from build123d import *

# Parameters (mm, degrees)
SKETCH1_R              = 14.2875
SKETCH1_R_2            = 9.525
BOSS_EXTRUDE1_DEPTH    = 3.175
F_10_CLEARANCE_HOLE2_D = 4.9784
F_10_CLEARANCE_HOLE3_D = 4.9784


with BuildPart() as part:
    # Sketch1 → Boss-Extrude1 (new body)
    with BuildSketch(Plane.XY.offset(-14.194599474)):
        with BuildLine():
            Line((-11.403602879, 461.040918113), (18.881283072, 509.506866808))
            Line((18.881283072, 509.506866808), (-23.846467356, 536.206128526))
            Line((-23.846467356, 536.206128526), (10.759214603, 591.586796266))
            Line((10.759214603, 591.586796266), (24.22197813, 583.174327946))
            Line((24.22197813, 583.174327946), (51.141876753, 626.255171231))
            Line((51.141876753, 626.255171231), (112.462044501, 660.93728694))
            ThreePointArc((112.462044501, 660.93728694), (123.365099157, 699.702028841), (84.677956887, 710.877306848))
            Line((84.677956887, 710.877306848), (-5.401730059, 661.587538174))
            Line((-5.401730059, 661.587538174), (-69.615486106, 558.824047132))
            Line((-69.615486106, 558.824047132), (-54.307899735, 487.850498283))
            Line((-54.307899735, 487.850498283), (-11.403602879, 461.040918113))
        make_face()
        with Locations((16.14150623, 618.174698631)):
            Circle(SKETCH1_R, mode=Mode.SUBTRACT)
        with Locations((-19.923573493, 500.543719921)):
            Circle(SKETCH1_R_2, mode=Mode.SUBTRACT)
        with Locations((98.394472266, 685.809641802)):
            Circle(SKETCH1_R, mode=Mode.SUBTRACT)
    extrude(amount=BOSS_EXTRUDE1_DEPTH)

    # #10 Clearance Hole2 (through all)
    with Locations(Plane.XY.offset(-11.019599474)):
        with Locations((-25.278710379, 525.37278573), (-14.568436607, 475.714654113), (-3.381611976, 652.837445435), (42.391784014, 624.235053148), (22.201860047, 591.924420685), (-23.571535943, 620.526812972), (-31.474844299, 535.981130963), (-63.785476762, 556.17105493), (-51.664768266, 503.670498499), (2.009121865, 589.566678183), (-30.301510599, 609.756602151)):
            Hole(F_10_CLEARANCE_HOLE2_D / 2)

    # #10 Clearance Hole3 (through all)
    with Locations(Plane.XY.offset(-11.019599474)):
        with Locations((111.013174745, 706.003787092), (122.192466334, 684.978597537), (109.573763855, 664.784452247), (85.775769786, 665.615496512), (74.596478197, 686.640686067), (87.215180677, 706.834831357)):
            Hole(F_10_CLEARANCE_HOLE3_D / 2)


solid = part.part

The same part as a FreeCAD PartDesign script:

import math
import FreeCAD as App
import Part
import Sketcher

V = App.Vector
Q = App.Units.Quantity

doc = App.newDocument("Part")
body = doc.addObject("PartDesign::Body", "Body")

# Sketch on XY plane
sketch1 = body.newObject("Sketcher::SketchObject", "Sketch")
sketch1.AttachmentSupport = (doc.getObject("XY_Plane"), [""])
sketch1.MapMode = "FlatFace"
sketch1.AttachmentOffset = App.Placement(V(0, 0, -14.194599), App.Rotation())
sketch1.addGeometry([
    Part.LineSegment(V(-11, 461, 0), V(19, 510, 0)),  # 0
    Part.LineSegment(V(19, 510, 0), V(-24, 536, 0)),  # 1
    Part.LineSegment(V(-24, 536, 0), V(11, 592, 0)),  # 2
    Part.LineSegment(V(11, 592, 0), V(24, 583, 0)),  # 3
    Part.LineSegment(V(24, 583, 0), V(51, 626, 0)),  # 4
    Part.LineSegment(V(51, 626, 0), V(112, 661, 0)),  # 5
    Part.ArcOfCircle(Part.Circle(V(98, 686, 0), V(0, 0, 1), 29), math.radians(-61), math.radians(119)),  # 6
    Part.LineSegment(V(85, 711, 0), V(-5, 662, 0)),  # 7
    Part.LineSegment(V(-5, 662, 0), V(-70, 559, 0)),  # 8
    Part.LineSegment(V(-70, 559, 0), V(-54, 488, 0)),  # 9
    Part.LineSegment(V(-54, 488, 0), V(-11, 461, 0)),  # 10
    Part.Circle(V(-20, 501, 0), V(0, 0, 1), 10),  # 11
    Part.Circle(V(16, 618, 0), V(0, 0, 1), 14),  # 12
    Part.Circle(V(98, 686, 0), V(0, 0, 1), 14),  # 13
], False)
sketch1.addConstraint([
    Sketcher.Constraint("Coincident", 0, 2, 1, 1),
    Sketcher.Constraint("Coincident", 1, 2, 2, 1),
    Sketcher.Constraint("Coincident", 2, 2, 3, 1),
    Sketcher.Constraint("Coincident", 3, 2, 4, 1),
    Sketcher.Constraint("Coincident", 4, 2, 5, 1),
    Sketcher.Constraint("Tangent", 5, 2, 6, 1),
    Sketcher.Constraint("Tangent", 6, 2, 7, 1),
    Sketcher.Constraint("Coincident", 7, 2, 8, 1),
    Sketcher.Constraint("Coincident", 8, 2, 9, 1),
    Sketcher.Constraint("Coincident", 9, 2, 10, 1),
    Sketcher.Constraint("Coincident", 10, 2, 0, 1),
    Sketcher.Constraint("Coincident", 13, 3, 6, 3),
    Sketcher.Constraint("Equal", 12, 13),
    Sketcher.Constraint("Perpendicular", 0, 1),
    Sketcher.Constraint("Perpendicular", 1, 2),
    Sketcher.Constraint("Perpendicular", 2, 3),
    Sketcher.Constraint("Perpendicular", 3, 4),
    Sketcher.Constraint("Parallel", 4, 8),
    Sketcher.Constraint("Perpendicular", 8, 10),
    Sketcher.Constraint("Diameter", 11, Q("0.75 in")),
    Sketcher.Constraint("Distance", 4, Q("2 in")),
    Sketcher.Constraint("Diameter", 12, Q("1.125 in")),
    Sketcher.Constraint("Angle", 0, Q("58 deg")),
    Sketcher.Constraint("Radius", 6, Q("1.125 in")),
    Sketcher.Constraint("Distance", 0, Q("2.25 in")),
    Sketcher.Constraint("Distance", 3, Q("0.625 in")),
    Sketcher.Constraint("DistanceY", -1, 1, 12, 3, 618.174699),
    Sketcher.Constraint("DistanceX", 9, 2, -1, 1, 54.3079),
    Sketcher.Constraint("DistanceY", -1, 1, 9, 2, 487.850498),
    Sketcher.Constraint("DistanceY", 1, 2, 3, 2, 46.968199),
    Sketcher.Constraint("DistanceX", 8, 2, 2, 2, 80.374701),
    Sketcher.Constraint("DistanceY", 10, 2, 11, 3, 39.502802),
    Sketcher.Constraint("Distance", 1, 50.383641),
    Sketcher.Constraint("Distance", 5, 70.448649),
    Sketcher.Constraint("Distance", 7, 102.68316),
    Sketcher.Constraint("Distance", 8, 121.176489),
    Sketcher.Constraint("Distance", 10, 50.59182),
    Sketcher.Constraint("DistanceY", -1, 1, 6, 3, 685.809642),
    Sketcher.Constraint("DistanceX", 11, 3, 12, 3, 36.06508),
    Sketcher.Constraint("DistanceX", 2, 2, 12, 3, 5.382292),
])
pad1 = body.newObject("PartDesign::Pad", "Pad")
pad1.Profile = sketch1
pad1.Length = Q("0.125 in")

# Sketch on XY plane
sketch2 = body.newObject("Sketcher::SketchObject", "Sketch001")
sketch2.AttachmentSupport = (doc.getObject("XY_Plane"), [""])
sketch2.MapMode = "FlatFace"
sketch2.AttachmentOffset = App.Placement(V(0, 0, -11.019599), App.Rotation())
sketch2.addGeometry([
    Part.Circle(V(-25.3, 525.4, 0), V(0, 0, 1), 2.5),  # 0
    Part.Circle(V(-14.6, 475.7, 0), V(0, 0, 1), 2.5),  # 1
    Part.Circle(V(-3.4, 652.8, 0), V(0, 0, 1), 2.5),  # 2
    Part.Circle(V(42.4, 624.2, 0), V(0, 0, 1), 2.5),  # 3
    Part.Circle(V(22.2, 591.9, 0), V(0, 0, 1), 2.5),  # 4
    Part.Circle(V(-23.6, 620.5, 0), V(0, 0, 1), 2.5),  # 5
    Part.Circle(V(-31.5, 536, 0), V(0, 0, 1), 2.5),  # 6
    Part.Circle(V(-63.8, 556.2, 0), V(0, 0, 1), 2.5),  # 7
    Part.Circle(V(-51.7, 503.7, 0), V(0, 0, 1), 2.5),  # 8
    Part.Circle(V(2, 589.6, 0), V(0, 0, 1), 2.5),  # 9
    Part.Circle(V(-30.3, 609.8, 0), V(0, 0, 1), 2.5),  # 10
], False)
sketch2.addConstraint([
    Sketcher.Constraint("Equal", 0, 1),
    Sketcher.Constraint("Equal", 1, 2),
    Sketcher.Constraint("Equal", 2, 3),
    Sketcher.Constraint("Equal", 3, 4),
    Sketcher.Constraint("Equal", 4, 5),
    Sketcher.Constraint("Equal", 5, 6),
    Sketcher.Constraint("Equal", 6, 7),
    Sketcher.Constraint("Equal", 7, 8),
    Sketcher.Constraint("Equal", 8, 9),
    Sketcher.Constraint("Equal", 9, 10),
    Sketcher.Constraint("Diameter", 0, Q("0.196 in")),
    Sketcher.Constraint("DistanceY", -1, 1, 8, 3, 503.670498),
    Sketcher.Constraint("DistanceX", 0, 3, 2, 3, 21.897098),
    Sketcher.Constraint("DistanceY", 1, 3, 3, 3, 148.520399),
    Sketcher.Constraint("DistanceX", 5, 3, 1, 3, 9.003099),
    Sketcher.Constraint("DistanceY", 1, 3, 7, 3, 80.456401),
    Sketcher.Constraint("DistanceX", 10, 3, 2, 3, 26.919899),
    Sketcher.Constraint("DistanceX", 0, 3, -1, 1, 25.27871),
    Sketcher.Constraint("DistanceX", -1, 1, 4, 3, 22.20186),
    Sketcher.Constraint("DistanceY", -1, 1, 4, 3, 591.924421),
    Sketcher.Constraint("DistanceY", -1, 1, 6, 3, 535.981131),
    Sketcher.Constraint("DistanceX", 8, 3, -1, 1, 51.664768),
    Sketcher.Constraint("DistanceX", -1, 1, 9, 3, 2.009122),
    Sketcher.Constraint("DistanceY", -1, 1, 9, 3, 589.566678),
    Sketcher.Constraint("DistanceY", 1, 3, 0, 3, 49.658132),
    Sketcher.Constraint("DistanceY", 0, 3, 2, 3, 127.46466),
    Sketcher.Constraint("DistanceX", 1, 3, 3, 3, 56.960221),
    Sketcher.Constraint("DistanceY", 5, 3, 3, 3, 3.70824),
    Sketcher.Constraint("DistanceX", 6, 3, 5, 3, 7.903308),
    Sketcher.Constraint("DistanceX", 7, 3, 5, 3, 40.213941),
    Sketcher.Constraint("DistanceX", 8, 3, 1, 3, 37.096332),
    Sketcher.Constraint("DistanceY", 10, 3, 5, 3, 10.770211),
    Sketcher.Constraint("DistanceY", 4, 3, 10, 3, 17.832181),
])
doc.recompute()
hole = body.newObject("PartDesign::Hole", "Hole")
hole.Profile = sketch2
hole.ThreadType = "None"
hole.Diameter = Q("0.196 in")
hole.DepthType = "ThroughAll"

# Sketch on XY plane
sketch3 = body.newObject("Sketcher::SketchObject", "Sketch002")
sketch3.AttachmentSupport = (doc.getObject("XY_Plane"), [""])
sketch3.MapMode = "FlatFace"
sketch3.AttachmentOffset = App.Placement(V(0, 0, -11.019599), App.Rotation())
sketch3.addGeometry([
    Part.Circle(V(111, 706, 0), V(0, 0, 1), 2.5),  # 0
    Part.Circle(V(122.2, 685, 0), V(0, 0, 1), 2.5),  # 1
    Part.Circle(V(109.6, 664.8, 0), V(0, 0, 1), 2.5),  # 2
    Part.Circle(V(85.8, 665.6, 0), V(0, 0, 1), 2.5),  # 3
    Part.Circle(V(74.6, 686.6, 0), V(0, 0, 1), 2.5),  # 4
    Part.Circle(V(87.2, 706.8, 0), V(0, 0, 1), 2.5),  # 5
], False)
sketch3.addConstraint([
    Sketcher.Constraint("Equal", 0, 1),
    Sketcher.Constraint("Equal", 1, 2),
    Sketcher.Constraint("Equal", 2, 3),
    Sketcher.Constraint("Equal", 3, 4),
    Sketcher.Constraint("Equal", 4, 5),
    Sketcher.Constraint("Diameter", 0, Q("0.196 in")),
    Sketcher.Constraint("DistanceY", 3, 3, 1, 3, 19.363101),
    Sketcher.Constraint("DistanceY", 4, 3, 0, 3, 19.363101),
    Sketcher.Constraint("DistanceX", -1, 1, 3, 3, 85.77577),
    Sketcher.Constraint("DistanceX", -1, 1, 4, 3, 74.596478),
    Sketcher.Constraint("DistanceX", -1, 1, 5, 3, 87.215181),
    Sketcher.Constraint("DistanceY", -1, 1, 5, 3, 706.834831),
    Sketcher.Constraint("DistanceX", 0, 3, 1, 3, 11.179292),
    Sketcher.Constraint("DistanceY", 1, 3, 0, 3, 21.02519),
    Sketcher.Constraint("DistanceX", 2, 3, 0, 3, 1.439411),
    Sketcher.Constraint("DistanceX", 4, 3, 1, 3, 47.595988),
    Sketcher.Constraint("DistanceY", 2, 3, 5, 3, 42.050379),
    Sketcher.Constraint("DistanceY", -1, 1, 0, 3, 706.003787),
])
doc.recompute()
hole2 = body.newObject("PartDesign::Hole", "Hole001")
hole2.Profile = sketch3
hole2.ThreadType = "None"
hole2.Diameter = Q("0.196 in")
hole2.DepthType = "ThroughAll"

doc.recompute()
